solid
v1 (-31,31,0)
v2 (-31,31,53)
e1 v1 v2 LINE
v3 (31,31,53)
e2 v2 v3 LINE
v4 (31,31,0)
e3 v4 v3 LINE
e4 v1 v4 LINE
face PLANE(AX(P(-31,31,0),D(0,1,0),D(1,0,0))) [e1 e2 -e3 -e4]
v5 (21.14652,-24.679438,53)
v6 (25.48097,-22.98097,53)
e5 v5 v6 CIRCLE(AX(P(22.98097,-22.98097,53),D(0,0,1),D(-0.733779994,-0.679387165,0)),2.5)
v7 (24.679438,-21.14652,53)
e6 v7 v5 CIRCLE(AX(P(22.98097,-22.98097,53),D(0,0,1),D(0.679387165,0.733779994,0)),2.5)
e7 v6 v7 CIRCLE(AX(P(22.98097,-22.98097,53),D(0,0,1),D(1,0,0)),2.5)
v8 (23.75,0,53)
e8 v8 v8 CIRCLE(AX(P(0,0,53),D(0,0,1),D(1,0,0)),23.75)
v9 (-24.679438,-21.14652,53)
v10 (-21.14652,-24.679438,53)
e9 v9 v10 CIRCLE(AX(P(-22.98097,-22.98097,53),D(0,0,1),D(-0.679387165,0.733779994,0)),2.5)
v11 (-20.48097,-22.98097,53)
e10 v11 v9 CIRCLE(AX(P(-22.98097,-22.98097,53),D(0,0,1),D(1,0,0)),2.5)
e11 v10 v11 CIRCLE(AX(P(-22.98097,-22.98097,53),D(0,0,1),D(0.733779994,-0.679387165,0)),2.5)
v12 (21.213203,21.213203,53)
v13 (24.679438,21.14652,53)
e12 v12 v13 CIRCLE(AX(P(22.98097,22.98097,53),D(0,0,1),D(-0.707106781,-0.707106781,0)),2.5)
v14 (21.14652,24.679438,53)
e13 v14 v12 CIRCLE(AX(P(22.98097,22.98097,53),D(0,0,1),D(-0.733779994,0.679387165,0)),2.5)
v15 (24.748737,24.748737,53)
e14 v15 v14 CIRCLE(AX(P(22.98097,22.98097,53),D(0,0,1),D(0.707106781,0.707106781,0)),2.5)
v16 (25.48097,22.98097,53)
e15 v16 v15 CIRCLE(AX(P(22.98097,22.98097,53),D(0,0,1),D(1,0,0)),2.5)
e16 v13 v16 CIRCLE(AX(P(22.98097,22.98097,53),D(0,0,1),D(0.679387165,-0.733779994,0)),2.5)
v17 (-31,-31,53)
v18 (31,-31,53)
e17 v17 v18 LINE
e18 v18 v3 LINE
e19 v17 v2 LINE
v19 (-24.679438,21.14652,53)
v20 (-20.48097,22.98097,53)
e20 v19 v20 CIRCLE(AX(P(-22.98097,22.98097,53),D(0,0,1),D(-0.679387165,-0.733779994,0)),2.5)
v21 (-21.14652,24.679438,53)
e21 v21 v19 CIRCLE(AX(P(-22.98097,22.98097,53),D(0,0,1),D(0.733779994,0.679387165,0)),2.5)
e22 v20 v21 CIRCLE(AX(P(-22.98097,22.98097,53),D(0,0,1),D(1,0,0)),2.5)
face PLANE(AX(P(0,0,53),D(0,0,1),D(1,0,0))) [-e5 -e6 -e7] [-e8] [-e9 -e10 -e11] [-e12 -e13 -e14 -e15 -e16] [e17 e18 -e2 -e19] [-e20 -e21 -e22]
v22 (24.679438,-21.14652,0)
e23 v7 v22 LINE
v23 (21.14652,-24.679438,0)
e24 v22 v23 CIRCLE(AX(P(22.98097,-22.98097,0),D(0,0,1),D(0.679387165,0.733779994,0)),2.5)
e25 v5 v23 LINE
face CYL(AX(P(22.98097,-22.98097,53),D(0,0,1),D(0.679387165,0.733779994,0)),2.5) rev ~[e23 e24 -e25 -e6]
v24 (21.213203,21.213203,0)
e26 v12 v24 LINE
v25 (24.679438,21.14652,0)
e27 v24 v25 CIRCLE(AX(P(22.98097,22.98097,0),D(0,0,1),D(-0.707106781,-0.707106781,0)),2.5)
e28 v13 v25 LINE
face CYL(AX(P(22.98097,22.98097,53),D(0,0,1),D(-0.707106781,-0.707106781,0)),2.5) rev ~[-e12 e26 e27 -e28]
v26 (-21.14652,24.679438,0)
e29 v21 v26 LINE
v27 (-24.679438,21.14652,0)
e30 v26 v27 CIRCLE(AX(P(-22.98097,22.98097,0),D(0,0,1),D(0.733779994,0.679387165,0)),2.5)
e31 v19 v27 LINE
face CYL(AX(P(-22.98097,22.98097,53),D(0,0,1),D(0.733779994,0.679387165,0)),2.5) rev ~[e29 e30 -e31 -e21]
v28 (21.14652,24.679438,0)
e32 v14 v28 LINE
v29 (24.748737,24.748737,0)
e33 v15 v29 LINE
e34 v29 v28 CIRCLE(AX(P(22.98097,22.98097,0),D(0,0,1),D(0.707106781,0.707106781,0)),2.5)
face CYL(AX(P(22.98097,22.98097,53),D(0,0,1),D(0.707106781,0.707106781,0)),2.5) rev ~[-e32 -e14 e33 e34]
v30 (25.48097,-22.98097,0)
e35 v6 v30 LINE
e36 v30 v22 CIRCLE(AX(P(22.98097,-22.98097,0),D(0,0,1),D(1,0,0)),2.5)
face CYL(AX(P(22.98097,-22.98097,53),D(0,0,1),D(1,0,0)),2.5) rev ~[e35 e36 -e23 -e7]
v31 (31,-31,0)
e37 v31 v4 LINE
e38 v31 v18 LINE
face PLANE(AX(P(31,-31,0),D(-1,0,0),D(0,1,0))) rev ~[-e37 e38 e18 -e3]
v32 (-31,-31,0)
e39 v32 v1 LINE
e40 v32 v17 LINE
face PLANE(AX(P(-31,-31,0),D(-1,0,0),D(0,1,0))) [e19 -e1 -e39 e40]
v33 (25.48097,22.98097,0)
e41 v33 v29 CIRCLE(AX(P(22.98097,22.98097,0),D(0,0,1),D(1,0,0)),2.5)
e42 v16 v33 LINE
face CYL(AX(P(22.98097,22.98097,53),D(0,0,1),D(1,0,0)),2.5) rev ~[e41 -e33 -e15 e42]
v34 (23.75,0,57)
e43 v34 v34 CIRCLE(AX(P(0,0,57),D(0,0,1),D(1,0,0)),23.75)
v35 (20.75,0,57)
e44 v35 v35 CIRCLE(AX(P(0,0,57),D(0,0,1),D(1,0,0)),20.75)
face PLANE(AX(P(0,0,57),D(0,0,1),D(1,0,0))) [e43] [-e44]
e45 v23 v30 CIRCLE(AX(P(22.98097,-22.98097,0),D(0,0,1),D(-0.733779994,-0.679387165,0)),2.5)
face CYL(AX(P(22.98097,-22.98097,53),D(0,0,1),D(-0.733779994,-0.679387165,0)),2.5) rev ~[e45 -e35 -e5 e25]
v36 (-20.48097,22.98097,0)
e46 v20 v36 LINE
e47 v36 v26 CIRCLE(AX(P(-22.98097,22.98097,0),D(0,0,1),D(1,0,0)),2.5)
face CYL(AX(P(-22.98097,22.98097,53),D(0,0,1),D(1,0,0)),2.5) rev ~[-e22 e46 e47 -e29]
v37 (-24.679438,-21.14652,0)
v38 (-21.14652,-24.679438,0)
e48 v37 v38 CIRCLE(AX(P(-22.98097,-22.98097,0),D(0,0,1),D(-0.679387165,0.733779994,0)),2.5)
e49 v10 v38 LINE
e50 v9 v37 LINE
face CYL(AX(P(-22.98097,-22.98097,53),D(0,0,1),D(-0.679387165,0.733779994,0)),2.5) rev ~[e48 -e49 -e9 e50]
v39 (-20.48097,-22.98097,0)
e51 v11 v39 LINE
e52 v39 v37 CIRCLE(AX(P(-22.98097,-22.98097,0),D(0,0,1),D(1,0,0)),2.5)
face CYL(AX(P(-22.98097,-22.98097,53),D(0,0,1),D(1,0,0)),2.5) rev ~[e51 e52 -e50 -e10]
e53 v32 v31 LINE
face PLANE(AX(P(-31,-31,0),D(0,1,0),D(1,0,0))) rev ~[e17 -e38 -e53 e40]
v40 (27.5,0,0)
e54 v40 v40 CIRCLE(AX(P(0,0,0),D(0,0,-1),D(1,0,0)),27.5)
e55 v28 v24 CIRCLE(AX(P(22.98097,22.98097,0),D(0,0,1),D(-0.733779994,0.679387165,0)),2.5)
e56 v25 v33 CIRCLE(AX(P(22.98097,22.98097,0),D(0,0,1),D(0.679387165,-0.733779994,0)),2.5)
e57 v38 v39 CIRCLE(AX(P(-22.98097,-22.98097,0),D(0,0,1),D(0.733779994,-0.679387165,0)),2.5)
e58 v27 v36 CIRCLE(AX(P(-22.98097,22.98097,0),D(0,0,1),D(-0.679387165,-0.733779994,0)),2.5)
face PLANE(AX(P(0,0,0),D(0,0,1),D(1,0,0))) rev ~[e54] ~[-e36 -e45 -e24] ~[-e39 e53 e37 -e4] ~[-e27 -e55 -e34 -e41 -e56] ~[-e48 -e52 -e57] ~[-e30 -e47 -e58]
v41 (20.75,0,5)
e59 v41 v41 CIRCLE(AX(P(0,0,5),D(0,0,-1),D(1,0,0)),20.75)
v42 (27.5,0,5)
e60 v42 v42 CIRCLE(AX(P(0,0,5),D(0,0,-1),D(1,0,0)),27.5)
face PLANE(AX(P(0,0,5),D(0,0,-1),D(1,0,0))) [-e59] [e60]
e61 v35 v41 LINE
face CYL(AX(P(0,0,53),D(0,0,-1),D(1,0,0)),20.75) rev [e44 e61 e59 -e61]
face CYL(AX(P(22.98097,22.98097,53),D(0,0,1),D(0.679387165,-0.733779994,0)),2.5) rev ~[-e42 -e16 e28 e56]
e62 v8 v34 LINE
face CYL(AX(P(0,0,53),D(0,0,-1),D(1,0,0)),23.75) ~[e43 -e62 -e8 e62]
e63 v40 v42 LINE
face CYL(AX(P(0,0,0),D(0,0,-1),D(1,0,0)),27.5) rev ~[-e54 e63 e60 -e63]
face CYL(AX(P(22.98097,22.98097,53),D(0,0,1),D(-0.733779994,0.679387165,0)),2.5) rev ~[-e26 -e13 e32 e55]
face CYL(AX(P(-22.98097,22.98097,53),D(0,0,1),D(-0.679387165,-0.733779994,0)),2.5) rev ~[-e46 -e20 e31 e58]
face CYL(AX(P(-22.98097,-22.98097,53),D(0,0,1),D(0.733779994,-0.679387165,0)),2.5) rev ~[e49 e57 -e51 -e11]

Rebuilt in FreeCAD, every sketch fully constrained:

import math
import FreeCAD as App
import Part
import Sketcher

V = App.Vector
Q = App.Units.Quantity

doc = App.newDocument("Part")
body = doc.addObject("PartDesign::Body", "Body")

# Sketch on XY plane
sketch1 = doc.addObject("Sketcher::SketchObject", "Sketch")
body.addObject(sketch1)
sketch1.AttachmentSupport = (doc.XY_Plane, [""])
sketch1.MapMode = "FlatFace"
sketch1.addGeometry([
    Part.LineSegment(V(-31, 31, 0), V(-31, -31, 0)),  # 0
    Part.LineSegment(V(-31, -31, 0), V(31, -31, 0)),  # 1
    Part.LineSegment(V(31, -31, 0), V(31, 31, 0)),  # 2
    Part.LineSegment(V(31, 31, 0), V(-31, 31, 0)),  # 3
    Part.Circle(V(0, 0, 0), V(0, 0, 1), 21),  # 4
], False)
sketch1.addConstraint([
    Sketcher.Constraint("Coincident", 0, 2, 1, 1),
    Sketcher.Constraint("Coincident", 1, 2, 2, 1),
    Sketcher.Constraint("Coincident", 2, 2, 3, 1),
    Sketcher.Constraint("Coincident", 3, 2, 0, 1),
    Sketcher.Constraint("Vertical", 0),
    Sketcher.Constraint("Horizontal", 1),
    Sketcher.Constraint("Vertical", 2),
    Sketcher.Constraint("Horizontal", 3),
    Sketcher.Constraint("Coincident", 4, 3, -1, 1),
    Sketcher.Constraint("Symmetric", 0, 2, 2, 2, -1, 1),
    Sketcher.Constraint("Equal", 3, 0),
    Sketcher.Constraint("Diameter", 4, Q("41.5 mm")),
    Sketcher.Constraint("DistanceX", 1, 1, 1, 2, Q("62 mm")),
])
pad1 = doc.addObject("PartDesign::Pad", "Pad")
body.addObject(pad1)
pad1.Profile = sketch1
pad1.Length = 53

# Sketch on XY plane
sketch2 = doc.addObject("Sketcher::SketchObject", "Sketch001")
body.addObject(sketch2)
sketch2.AttachmentSupport = (doc.XY_Plane, [""])
sketch2.MapMode = "FlatFace"
sketch2.AttachmentOffset = App.Placement(V(0, 0, 53), App.Rotation())
sketch2.addGeometry([
    Part.Circle(V(0, 0, 0), V(0, 0, 1), 24),
    Part.Circle(V(0, 0, 0), V(0, 0, 1), 21),
], False)
sketch2.addConstraint([
    Sketcher.Constraint("Coincident", 0, 3, -1, 1),
    Sketcher.Constraint("Coincident", 1, 3, -1, 1),
    Sketcher.Constraint("Diameter", 0, Q("47.5 mm")),
    Sketcher.Constraint("Diameter", 1, Q("41.5 mm")),
])
pad2 = doc.addObject("PartDesign::Pad", "Pad001")
body.addObject(pad2)
pad2.Profile = sketch2
pad2.Length = 4

# Sketch on XY plane
sketch3 = doc.addObject("Sketcher::SketchObject", "Sketch002")
body.addObject(sketch3)
sketch3.AttachmentSupport = (doc.XY_Plane, [""])
sketch3.MapMode = "FlatFace"
sketch3.addGeometry([
    Part.Circle(V(0, 0, 0), V(0, 0, 1), 28),
    Part.Circle(V(0, 0, 0), V(0, 0, 1), 21),
], False)
sketch3.addConstraint([
    Sketcher.Constraint("Coincident", 0, 3, -1, 1),
    Sketcher.Constraint("Coincident", 1, 3, -1, 1),
    Sketcher.Constraint("Diameter", 0, Q("55 mm")),
    Sketcher.Constraint("Diameter", 1, Q("41.5 mm")),
])
pocket1 = doc.addObject("PartDesign::Pocket", "Pocket")
body.addObject(pocket1)
pocket1.Profile = sketch3
pocket1.Length = 5
pocket1.Reversed = True

# Sketch on XY plane
sketch4 = doc.addObject("Sketcher::SketchObject", "Sketch003")
body.addObject(sketch4)
sketch4.AttachmentSupport = (doc.XY_Plane, [""])
sketch4.MapMode = "FlatFace"
sketch4.AttachmentOffset = App.Placement(V(0, 0, 53), App.Rotation())
sketch4.addGeometry([
    Part.ArcOfCircle(Part.Circle(V(-23, 23, 0), V(0, 0, 1), 2.5), math.radians(43), math.radians(227)),  # 0
    Part.ArcOfCircle(Part.Circle(V(-23, 23, 0), V(0, 0, 1), 2.5), math.radians(-133), math.radians(0)),  # 1
    Part.ArcOfCircle(Part.Circle(V(-23, 23, 0), V(0, 0, 1), 2.5), math.radians(0), math.radians(43)),  # 2
    Part.ArcOfCircle(Part.Circle(V(23, 23, 0), V(0, 0, 1), 2.5), math.radians(-135), math.radians(-47)),  # 3
    Part.ArcOfCircle(Part.Circle(V(23, 23, 0), V(0, 0, 1), 2.5), math.radians(-47), math.radians(0)),  # 4
    Part.ArcOfCircle(Part.Circle(V(23, 23, 0), V(0, 0, 1), 2.5), math.radians(0), math.radians(45)),  # 5
    Part.ArcOfCircle(Part.Circle(V(23, 23, 0), V(0, 0, 1), 2.5), math.radians(45), math.radians(137)),  # 6
    Part.ArcOfCircle(Part.Circle(V(23, 23, 0), V(0, 0, 1), 2.5), math.radians(137), math.radians(225)),  # 7
    Part.ArcOfCircle(Part.Circle(V(23, -23, 0), V(0, 0, 1), 2.5), math.radians(47), math.radians(223)),  # 8
    Part.ArcOfCircle(Part.Circle(V(23, -23, 0), V(0, 0, 1), 2.5), math.radians(-137), math.radians(0)),  # 9
    Part.ArcOfCircle(Part.Circle(V(23, -23, 0), V(0, 0, 1), 2.5), math.radians(0), math.radians(47)),  # 10
    Part.ArcOfCircle(Part.Circle(V(-23, -23, 0), V(0, 0, 1), 2.5), math.radians(133), math.radians(317)),  # 11
    Part.ArcOfCircle(Part.Circle(V(-23, -23, 0), V(0, 0, 1), 2.5), math.radians(-43), math.radians(0)),  # 12
    Part.ArcOfCircle(Part.Circle(V(-23, -23, 0), V(0, 0, 1), 2.5), math.radians(0), math.radians(133)),  # 13
], False)
sketch4.addConstraint([
    Sketcher.Constraint("Tangent", 0, 2, 1, 1),
    Sketcher.Constraint("Tangent", 1, 2, 2, 1),
    Sketcher.Constraint("Tangent", 2, 2, 0, 1),
    Sketcher.Constraint("Tangent", 3, 2, 4, 1),
    Sketcher.Constraint("Tangent", 4, 2, 5, 1),
    Sketcher.Constraint("Tangent", 5, 2, 6, 1),
    Sketcher.Constraint("Tangent", 6, 2, 7, 1),
    Sketcher.Constraint("Tangent", 7, 2, 3, 1),
    Sketcher.Constraint("Tangent", 8, 2, 9, 1),
    Sketcher.Constraint("Tangent", 9, 2, 10, 1),
    Sketcher.Constraint("Tangent", 10, 2, 8, 1),
    Sketcher.Constraint("Tangent", 11, 2, 12, 1),
    Sketcher.Constraint("Tangent", 12, 2, 13, 1),
    Sketcher.Constraint("Tangent", 13, 2, 11, 1),
    Sketcher.Constraint("Coincident", 5, 3, 3, 3),
    Sketcher.Constraint("Equal", 2, 3),
    Sketcher.Constraint("Equal", 7, 8),
    Sketcher.Constraint("Equal", 10, 11),
    Sketcher.Constraint("Symmetric", 0, 3, 8, 3, -1, 1),
    Sketcher.Constraint("Symmetric", 3, 3, 11, 3, -1, 1),
    Sketcher.Constraint("Symmetric", 0, 3, 3, 3, -2),
    Sketcher.Constraint("Horizontal", 7, 3, 1, 2),
    Sketcher.Constraint("Horizontal", 0, 2, 3, 2),
    Sketcher.Constraint("Horizontal", 1, 2, 4, 2),
    Sketcher.Constraint("Horizontal", 2, 2, 6, 2),
    Sketcher.Constraint("Horizontal", 13, 3, 9, 2),
    Sketcher.Constraint("Horizontal", 8, 2, 11, 2),
    Sketcher.Constraint("Horizontal", 9, 2, 12, 2),
    Sketcher.Constraint("Horizontal", 10, 2, 13, 2),
    Sketcher.Constraint("Vertical", 6, 2, 8, 2),
    Sketcher.Constraint("Vertical", 3, 2, 10, 2),
    Sketcher.Constraint("Radius", 0, Q("2.5 mm")),
    Sketcher.Constraint("DistanceX", 0, 3, -1, 1, Q("22.98097 mm")),
    Sketcher.Constraint("DistanceY", -1, 1, 0, 3, Q("22.98097 mm")),
    Sketcher.Constraint("DistanceX", 0, 2, -1, 1, Q("24.679438 mm")),
    Sketcher.Constraint("DistanceX", 2, 2, -1, 1, Q("21.14652 mm")),
    Sketcher.Constraint("DistanceX", -1, 1, 5, 2, Q("24.748737 mm")),
    Sketcher.Constraint("DistanceX", -1, 1, 7, 2, Q("21.213203 mm")),
])
pocket2 = doc.addObject("PartDesign::Pocket", "Pocket001")
body.addObject(pocket2)
pocket2.Profile = sketch4
pocket2.Type = "ThroughAll"

doc.recompute()
